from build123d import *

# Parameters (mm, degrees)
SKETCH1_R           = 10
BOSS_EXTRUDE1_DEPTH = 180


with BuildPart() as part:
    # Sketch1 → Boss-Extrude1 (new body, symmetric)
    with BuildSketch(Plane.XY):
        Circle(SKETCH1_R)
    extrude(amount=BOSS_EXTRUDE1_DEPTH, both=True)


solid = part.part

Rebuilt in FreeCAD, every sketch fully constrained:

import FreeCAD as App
import Part
import Sketcher

V = App.Vector

doc = App.newDocument("Part")
body = doc.addObject("PartDesign::Body", "Body")

# Sketch on XY plane
sketch1 = body.newObject("Sketcher::SketchObject", "Sketch")
sketch1.AttachmentSupport = (doc.getObject("XY_Plane"), [""])
sketch1.MapMode = "FlatFace"
sketch1.addGeometry(Part.Circle(V(0, 0, 0), V(0, 0, 1), 10), False)
sketch1.addConstraint([
    Sketcher.Constraint("Coincident", 0, 3, -1, 1),
    Sketcher.Constraint("Diameter", 0, 20.0),
])
pad1 = body.newObject("PartDesign::Pad", "Pad")
pad1.Profile = sketch1
pad1.Length = 360
pad1.Midplane = True

doc.recompute()
